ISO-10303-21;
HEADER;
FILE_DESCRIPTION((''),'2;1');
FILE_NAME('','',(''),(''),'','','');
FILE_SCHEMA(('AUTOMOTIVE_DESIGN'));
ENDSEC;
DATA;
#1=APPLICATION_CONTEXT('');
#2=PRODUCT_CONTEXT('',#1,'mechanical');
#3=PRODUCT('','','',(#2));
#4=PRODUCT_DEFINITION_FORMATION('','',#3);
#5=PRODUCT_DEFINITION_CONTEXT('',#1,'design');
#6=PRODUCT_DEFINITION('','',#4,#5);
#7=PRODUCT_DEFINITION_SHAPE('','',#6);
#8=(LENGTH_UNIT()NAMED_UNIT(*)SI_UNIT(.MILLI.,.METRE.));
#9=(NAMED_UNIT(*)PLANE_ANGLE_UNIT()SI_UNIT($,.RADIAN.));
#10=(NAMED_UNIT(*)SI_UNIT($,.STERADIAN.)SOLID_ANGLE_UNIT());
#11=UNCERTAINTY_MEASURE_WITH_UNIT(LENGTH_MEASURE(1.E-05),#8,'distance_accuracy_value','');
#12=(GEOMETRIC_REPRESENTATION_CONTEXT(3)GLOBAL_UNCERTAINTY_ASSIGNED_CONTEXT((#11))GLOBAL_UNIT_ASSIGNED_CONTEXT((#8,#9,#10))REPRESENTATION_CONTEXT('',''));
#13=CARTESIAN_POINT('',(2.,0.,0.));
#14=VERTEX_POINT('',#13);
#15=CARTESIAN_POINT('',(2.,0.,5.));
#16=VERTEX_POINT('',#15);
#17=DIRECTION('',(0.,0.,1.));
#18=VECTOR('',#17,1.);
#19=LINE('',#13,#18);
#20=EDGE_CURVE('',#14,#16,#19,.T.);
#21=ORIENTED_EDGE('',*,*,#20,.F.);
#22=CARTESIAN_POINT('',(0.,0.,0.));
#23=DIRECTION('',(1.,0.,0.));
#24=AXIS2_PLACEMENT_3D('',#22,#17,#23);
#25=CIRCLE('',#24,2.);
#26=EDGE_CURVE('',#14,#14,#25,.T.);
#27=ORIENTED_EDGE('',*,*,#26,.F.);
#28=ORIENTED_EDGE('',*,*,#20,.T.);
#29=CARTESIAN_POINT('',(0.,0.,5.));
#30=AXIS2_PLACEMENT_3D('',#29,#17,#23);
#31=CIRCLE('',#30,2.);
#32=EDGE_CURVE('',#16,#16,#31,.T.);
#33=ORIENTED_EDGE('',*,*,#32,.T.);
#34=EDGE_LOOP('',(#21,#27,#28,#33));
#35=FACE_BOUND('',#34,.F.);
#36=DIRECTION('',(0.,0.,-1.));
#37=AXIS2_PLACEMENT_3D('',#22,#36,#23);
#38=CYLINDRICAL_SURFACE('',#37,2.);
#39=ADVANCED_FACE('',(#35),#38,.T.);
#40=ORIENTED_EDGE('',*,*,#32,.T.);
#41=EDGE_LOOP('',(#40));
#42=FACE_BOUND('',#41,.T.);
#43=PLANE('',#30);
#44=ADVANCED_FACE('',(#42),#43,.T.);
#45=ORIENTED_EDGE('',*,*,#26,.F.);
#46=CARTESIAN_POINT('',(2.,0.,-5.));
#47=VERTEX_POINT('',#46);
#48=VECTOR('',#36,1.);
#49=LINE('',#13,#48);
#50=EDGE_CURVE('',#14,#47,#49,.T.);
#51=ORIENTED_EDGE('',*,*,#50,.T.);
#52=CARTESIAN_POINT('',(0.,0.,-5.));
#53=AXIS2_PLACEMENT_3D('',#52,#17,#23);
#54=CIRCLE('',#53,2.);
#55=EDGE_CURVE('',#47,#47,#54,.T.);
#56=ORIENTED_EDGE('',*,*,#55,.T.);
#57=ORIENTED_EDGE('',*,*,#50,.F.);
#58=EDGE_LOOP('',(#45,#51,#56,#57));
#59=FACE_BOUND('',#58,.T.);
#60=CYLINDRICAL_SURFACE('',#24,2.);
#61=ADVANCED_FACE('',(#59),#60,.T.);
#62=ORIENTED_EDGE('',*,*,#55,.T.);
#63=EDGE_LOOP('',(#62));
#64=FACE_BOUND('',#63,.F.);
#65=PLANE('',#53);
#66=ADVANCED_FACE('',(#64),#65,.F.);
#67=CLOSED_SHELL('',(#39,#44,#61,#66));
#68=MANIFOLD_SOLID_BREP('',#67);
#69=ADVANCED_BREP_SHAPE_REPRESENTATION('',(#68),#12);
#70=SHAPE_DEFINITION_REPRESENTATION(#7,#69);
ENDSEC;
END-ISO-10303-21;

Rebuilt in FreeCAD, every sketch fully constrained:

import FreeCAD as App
import Part
import Sketcher
Q = App.Units.Quantity

doc = App.newDocument("Part")
body = doc.addObject("PartDesign::Body", "Body")

# Sketch on XY plane
sketch1 = doc.addObject("Sketcher::SketchObject", "Sketch")
body.addObject(sketch1)
sketch1.AttachmentSupport = (doc.XY_Plane, [""])
sketch1.MapMode = "FlatFace"
sketch1.addGeometry(Part.Circle(App.Vector(0, 0, 0), App.Vector(0, 0, 1), 2), False)
sketch1.addConstraint(Sketcher.Constraint("Coincident", 0, 3, -1, 1))
sketch1.addConstraint(Sketcher.Constraint("Diameter", 0, Q("4 mm")))
pad1 = doc.addObject("PartDesign::Pad", "Pad")
body.addObject(pad1)
pad1.Profile = sketch1
pad1.Length = 10
pad1.Midplane = True

doc.recompute()
